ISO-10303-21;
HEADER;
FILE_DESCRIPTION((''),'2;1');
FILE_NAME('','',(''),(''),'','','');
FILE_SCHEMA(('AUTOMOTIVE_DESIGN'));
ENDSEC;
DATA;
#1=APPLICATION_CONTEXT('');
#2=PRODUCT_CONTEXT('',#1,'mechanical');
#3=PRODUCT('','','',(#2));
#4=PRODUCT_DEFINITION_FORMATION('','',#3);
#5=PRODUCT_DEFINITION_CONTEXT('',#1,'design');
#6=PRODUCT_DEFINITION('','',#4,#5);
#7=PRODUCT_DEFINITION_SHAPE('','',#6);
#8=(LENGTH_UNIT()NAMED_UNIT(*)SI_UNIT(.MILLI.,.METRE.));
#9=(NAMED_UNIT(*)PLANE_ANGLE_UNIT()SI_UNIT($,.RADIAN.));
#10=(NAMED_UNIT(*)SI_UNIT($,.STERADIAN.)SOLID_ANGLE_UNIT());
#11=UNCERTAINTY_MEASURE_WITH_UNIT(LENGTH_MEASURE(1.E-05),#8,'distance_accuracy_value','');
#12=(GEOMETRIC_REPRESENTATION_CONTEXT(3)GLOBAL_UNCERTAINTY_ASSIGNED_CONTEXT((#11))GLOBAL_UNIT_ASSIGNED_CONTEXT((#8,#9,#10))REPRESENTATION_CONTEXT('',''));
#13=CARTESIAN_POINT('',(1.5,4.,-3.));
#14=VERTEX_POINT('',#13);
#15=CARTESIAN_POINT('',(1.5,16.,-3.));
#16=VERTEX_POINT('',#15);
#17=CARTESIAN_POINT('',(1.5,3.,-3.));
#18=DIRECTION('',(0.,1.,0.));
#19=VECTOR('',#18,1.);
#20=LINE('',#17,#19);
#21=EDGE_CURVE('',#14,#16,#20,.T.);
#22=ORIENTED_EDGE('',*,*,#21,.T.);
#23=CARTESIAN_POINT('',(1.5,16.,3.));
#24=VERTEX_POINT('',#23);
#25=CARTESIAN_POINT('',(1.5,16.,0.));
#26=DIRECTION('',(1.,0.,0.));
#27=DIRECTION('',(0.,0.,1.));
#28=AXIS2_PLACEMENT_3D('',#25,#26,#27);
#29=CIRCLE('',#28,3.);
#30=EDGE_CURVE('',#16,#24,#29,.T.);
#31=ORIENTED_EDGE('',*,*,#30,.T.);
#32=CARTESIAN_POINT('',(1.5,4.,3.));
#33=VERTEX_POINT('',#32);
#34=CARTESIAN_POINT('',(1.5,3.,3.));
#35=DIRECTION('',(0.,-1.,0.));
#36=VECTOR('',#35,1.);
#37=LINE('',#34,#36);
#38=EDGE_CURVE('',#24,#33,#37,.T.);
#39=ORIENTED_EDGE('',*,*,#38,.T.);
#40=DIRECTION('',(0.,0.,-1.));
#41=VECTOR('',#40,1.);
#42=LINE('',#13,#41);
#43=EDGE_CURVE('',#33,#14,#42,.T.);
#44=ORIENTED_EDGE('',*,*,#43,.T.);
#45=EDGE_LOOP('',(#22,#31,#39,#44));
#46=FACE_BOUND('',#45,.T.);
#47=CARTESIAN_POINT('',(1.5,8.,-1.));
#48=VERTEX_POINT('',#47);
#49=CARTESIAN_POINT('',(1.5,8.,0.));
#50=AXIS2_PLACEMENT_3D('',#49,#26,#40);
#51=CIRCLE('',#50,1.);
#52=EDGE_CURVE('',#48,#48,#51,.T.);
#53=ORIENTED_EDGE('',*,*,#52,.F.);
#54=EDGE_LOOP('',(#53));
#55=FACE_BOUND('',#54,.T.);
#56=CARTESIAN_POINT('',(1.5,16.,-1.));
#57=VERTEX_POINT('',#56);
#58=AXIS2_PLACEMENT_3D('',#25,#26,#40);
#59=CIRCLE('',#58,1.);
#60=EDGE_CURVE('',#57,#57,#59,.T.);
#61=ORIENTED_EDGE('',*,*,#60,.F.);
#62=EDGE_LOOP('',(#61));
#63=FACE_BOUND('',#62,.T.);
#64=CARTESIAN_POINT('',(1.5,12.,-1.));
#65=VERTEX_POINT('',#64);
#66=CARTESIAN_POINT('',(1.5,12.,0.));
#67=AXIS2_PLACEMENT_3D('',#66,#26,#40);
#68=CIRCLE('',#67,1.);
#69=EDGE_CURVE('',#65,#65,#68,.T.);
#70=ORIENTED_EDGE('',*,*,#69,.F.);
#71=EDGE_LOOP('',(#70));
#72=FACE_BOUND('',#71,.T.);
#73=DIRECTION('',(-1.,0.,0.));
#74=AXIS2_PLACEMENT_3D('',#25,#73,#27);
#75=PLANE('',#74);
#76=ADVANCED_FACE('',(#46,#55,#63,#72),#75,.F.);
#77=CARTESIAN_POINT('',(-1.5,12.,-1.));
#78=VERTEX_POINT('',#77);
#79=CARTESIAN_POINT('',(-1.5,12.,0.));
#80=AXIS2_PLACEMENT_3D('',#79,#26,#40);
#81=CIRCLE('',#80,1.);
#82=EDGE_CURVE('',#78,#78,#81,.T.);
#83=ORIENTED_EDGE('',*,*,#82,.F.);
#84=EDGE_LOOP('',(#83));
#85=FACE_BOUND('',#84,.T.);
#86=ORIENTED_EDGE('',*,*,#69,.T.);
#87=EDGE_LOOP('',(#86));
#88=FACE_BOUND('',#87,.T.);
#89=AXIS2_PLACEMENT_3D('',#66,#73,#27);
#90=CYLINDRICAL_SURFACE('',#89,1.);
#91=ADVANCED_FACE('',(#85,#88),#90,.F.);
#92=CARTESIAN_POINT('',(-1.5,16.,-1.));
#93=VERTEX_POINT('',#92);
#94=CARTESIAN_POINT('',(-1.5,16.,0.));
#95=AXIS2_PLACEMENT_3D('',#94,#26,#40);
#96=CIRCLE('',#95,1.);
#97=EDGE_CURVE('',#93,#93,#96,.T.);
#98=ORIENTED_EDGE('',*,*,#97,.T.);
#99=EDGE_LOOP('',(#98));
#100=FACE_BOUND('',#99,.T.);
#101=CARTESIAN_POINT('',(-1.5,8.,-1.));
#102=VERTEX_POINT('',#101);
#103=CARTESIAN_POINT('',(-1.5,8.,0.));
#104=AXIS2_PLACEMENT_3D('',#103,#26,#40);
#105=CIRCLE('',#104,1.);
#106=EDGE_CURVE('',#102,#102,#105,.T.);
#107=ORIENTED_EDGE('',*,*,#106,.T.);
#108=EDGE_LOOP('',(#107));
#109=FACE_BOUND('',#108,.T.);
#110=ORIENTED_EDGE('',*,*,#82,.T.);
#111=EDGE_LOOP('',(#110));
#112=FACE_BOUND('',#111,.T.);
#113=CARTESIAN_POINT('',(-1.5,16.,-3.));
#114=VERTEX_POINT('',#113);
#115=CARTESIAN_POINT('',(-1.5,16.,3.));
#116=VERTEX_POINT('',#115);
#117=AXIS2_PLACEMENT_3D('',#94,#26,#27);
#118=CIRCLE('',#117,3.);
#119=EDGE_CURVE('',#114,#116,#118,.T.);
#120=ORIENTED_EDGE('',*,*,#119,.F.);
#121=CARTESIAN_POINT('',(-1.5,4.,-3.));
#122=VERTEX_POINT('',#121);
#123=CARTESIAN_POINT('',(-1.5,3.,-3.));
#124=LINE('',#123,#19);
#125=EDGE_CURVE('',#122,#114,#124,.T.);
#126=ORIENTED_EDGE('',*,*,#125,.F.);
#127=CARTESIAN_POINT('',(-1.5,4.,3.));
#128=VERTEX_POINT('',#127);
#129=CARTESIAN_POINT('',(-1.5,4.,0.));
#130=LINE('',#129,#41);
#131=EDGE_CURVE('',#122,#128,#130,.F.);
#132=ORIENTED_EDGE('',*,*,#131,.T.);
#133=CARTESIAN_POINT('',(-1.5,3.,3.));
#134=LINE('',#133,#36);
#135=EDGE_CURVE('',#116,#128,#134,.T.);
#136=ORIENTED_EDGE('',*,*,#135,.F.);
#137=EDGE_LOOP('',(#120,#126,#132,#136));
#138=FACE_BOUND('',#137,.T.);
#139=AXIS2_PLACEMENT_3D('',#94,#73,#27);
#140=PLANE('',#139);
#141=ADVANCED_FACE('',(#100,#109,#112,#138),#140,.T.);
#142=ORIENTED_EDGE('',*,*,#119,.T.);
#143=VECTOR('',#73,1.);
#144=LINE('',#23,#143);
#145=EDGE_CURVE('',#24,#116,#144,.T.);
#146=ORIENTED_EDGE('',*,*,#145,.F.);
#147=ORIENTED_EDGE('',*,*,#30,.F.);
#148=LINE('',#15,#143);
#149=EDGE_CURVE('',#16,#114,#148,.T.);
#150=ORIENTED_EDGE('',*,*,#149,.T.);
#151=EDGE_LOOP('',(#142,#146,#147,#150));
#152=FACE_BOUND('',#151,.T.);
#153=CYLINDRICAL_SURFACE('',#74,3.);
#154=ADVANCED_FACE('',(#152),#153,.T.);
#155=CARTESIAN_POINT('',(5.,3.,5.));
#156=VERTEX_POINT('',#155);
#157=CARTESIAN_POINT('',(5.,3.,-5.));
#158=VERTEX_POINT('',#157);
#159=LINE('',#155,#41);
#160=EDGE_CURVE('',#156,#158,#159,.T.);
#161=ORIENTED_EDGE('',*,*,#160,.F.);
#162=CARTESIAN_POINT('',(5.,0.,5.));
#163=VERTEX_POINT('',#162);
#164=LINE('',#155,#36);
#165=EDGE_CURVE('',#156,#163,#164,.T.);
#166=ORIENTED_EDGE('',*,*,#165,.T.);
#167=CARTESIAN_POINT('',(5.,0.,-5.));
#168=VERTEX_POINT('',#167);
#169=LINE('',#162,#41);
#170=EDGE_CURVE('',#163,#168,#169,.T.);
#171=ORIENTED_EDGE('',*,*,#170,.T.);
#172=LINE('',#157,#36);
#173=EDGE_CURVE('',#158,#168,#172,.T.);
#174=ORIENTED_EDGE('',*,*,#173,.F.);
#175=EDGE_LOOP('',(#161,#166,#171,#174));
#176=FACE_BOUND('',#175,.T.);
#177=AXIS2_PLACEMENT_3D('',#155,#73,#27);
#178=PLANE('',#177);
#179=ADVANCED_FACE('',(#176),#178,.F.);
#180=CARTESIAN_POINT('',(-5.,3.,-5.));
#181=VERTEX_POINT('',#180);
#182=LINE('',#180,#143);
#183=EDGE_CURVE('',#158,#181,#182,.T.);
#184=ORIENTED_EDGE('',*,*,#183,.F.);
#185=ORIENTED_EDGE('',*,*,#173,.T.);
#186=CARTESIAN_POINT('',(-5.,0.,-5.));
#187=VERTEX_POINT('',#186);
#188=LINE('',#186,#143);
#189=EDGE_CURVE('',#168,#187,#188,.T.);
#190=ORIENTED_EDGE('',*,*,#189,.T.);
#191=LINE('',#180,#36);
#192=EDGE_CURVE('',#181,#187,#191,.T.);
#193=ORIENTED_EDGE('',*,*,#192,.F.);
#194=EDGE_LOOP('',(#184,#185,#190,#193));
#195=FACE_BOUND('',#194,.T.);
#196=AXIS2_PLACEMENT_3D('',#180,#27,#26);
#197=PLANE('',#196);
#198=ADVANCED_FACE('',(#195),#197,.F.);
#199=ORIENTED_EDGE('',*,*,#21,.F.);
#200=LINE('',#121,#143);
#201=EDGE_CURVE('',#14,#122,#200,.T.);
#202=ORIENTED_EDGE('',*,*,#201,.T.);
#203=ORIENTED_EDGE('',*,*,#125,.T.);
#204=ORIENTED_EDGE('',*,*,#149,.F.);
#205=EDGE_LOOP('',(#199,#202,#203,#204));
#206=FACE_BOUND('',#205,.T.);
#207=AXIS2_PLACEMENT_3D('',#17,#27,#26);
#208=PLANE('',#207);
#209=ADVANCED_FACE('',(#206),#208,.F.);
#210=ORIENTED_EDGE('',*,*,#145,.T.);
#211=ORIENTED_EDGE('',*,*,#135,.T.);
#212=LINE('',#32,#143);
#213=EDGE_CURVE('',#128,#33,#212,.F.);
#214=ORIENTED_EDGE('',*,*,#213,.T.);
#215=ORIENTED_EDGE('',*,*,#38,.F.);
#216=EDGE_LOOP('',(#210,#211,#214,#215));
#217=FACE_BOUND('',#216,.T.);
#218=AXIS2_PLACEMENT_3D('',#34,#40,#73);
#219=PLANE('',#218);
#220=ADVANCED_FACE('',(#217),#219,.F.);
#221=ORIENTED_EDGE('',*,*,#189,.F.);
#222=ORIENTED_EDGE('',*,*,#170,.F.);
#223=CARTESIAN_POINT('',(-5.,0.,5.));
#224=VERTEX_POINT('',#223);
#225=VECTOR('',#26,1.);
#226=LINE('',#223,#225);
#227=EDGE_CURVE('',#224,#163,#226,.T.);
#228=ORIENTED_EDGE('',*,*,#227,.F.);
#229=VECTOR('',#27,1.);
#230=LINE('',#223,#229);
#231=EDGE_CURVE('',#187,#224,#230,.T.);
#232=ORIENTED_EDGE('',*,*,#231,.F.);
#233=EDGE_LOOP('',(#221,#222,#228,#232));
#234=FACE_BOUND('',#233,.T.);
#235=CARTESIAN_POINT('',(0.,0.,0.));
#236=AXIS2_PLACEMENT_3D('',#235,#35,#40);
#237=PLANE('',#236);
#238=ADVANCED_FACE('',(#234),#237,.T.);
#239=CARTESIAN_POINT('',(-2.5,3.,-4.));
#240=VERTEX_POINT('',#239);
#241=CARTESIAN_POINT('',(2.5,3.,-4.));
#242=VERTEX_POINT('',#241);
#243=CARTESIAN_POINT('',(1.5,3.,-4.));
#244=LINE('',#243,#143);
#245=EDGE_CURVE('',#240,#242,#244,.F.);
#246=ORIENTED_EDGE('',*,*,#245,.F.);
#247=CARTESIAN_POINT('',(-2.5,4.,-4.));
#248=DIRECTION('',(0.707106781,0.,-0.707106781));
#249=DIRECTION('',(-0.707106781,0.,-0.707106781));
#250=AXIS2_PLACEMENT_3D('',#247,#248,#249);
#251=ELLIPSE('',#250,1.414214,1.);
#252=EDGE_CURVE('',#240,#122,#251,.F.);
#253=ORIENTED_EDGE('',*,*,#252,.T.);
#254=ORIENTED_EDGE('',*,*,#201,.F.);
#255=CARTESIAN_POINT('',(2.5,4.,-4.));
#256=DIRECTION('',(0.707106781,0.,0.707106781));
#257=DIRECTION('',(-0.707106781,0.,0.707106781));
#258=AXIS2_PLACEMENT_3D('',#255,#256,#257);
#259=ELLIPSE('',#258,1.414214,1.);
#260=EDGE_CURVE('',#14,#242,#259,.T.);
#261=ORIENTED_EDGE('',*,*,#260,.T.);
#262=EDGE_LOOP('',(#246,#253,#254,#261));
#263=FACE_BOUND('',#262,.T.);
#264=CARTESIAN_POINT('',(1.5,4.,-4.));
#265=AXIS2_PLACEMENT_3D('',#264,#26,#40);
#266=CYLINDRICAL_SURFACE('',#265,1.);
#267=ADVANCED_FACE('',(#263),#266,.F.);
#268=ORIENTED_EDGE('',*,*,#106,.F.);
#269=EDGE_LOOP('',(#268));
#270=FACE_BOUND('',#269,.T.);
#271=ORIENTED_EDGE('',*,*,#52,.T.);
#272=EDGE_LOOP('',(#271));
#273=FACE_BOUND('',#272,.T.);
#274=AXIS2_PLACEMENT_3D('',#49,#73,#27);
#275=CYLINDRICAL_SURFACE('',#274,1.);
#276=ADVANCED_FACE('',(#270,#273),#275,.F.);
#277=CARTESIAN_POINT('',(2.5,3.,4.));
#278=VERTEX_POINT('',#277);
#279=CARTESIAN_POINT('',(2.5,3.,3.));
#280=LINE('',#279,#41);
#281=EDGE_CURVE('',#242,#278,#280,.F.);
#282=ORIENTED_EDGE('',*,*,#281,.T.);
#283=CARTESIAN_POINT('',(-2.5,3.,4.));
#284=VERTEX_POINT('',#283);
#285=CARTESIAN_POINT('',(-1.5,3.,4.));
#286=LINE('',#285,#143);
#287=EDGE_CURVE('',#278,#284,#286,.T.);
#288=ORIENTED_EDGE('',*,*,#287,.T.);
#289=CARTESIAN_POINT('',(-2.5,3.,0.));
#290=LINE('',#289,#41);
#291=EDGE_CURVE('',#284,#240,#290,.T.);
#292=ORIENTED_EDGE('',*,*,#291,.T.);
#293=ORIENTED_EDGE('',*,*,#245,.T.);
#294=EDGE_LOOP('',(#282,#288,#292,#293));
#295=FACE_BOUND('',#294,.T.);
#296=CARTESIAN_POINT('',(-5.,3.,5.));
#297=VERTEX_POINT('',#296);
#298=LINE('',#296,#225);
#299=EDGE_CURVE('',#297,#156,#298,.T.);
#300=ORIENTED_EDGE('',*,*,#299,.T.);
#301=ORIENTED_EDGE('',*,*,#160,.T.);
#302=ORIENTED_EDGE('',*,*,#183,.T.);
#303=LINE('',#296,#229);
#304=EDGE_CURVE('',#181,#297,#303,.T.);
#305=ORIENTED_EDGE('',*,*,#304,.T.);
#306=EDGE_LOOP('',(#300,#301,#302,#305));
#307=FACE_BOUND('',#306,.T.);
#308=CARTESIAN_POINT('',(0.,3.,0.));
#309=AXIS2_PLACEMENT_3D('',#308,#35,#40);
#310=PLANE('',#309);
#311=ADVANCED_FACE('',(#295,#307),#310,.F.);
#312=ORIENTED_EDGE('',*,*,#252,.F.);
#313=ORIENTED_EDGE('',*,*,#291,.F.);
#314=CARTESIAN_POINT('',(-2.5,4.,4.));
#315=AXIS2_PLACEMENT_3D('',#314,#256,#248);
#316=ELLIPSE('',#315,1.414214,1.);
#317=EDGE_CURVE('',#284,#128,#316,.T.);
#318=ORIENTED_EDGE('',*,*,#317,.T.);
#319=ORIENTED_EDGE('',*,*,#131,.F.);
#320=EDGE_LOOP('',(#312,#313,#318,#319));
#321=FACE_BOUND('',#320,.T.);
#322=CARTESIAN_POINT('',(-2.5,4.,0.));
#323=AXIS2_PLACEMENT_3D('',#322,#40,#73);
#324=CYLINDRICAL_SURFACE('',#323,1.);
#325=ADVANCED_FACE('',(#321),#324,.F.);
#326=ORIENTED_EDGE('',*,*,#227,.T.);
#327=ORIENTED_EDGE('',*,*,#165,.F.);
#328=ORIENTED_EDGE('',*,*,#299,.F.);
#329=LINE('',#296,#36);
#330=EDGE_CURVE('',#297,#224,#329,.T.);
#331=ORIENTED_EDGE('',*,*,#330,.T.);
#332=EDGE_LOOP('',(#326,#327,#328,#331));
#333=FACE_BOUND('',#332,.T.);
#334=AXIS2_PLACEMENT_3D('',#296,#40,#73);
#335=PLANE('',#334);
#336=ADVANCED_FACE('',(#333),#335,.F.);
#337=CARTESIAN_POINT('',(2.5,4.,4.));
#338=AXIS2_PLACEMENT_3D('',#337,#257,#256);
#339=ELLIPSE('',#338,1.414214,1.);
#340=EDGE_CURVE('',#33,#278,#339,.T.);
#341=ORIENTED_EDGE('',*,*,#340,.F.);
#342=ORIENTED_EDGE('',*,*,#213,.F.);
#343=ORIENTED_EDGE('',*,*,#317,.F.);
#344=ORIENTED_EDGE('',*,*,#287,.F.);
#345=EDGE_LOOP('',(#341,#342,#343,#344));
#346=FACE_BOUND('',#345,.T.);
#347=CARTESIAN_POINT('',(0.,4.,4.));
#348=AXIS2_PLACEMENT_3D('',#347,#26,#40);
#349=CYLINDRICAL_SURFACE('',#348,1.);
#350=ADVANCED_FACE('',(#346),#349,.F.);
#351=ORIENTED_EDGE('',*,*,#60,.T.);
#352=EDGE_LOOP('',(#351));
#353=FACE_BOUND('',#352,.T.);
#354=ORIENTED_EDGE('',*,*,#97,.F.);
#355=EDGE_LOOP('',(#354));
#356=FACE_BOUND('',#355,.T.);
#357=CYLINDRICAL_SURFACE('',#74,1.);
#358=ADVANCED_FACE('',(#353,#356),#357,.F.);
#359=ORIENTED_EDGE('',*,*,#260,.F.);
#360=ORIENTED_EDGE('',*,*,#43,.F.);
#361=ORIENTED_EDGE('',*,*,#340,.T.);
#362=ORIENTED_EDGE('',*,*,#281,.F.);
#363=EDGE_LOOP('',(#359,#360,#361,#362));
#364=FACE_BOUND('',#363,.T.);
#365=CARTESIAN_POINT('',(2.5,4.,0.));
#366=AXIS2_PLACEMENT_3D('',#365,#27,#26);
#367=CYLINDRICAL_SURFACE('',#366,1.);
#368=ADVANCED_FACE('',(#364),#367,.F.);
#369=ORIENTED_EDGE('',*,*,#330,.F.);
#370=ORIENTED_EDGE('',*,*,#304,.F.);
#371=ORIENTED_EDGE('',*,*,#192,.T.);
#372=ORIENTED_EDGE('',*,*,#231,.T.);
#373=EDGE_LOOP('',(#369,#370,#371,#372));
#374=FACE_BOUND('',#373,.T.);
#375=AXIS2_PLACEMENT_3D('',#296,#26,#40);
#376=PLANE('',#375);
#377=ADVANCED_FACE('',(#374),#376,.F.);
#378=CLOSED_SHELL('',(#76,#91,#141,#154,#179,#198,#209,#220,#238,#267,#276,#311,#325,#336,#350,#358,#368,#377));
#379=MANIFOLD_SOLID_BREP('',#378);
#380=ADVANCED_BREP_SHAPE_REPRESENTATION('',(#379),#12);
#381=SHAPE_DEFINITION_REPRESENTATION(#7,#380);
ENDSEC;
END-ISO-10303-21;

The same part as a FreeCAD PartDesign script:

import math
import FreeCAD as App
import Part
import Sketcher

V = App.Vector


def edges_at(feature, points):
    """Names of the edges that pass closest to the given points."""
    edges = feature.Shape.Edges
    near = lambda p: min(range(len(edges)), key=lambda i: edges[i].distToShape(Part.Vertex(*p))[0])
    return sorted({f"Edge{near(p) + 1}" for p in points})

doc = App.newDocument("Part")
body = doc.addObject("PartDesign::Body", "Body")

# Sketch on XZ plane
sketch1 = body.newObject("Sketcher::SketchObject", "Sketch")
sketch1.AttachmentSupport = (doc.getObject("XZ_Plane"), [""])
sketch1.MapMode = "FlatFace"
sketch1.addGeometry(Part.LineSegment(V(-5, -5, 0), V(-5, 5, 0)), False)
sketch1.addGeometry(Part.LineSegment(V(-5, 5, 0), V(5, 5, 0)), False)
sketch1.addGeometry(Part.LineSegment(V(5, 5, 0), V(5, -5, 0)), False)
sketch1.addGeometry(Part.LineSegment(V(5, -5, 0), V(-5, -5, 0)), False)
sketch1.addConstraint(Sketcher.Constraint("Coincident", 0, 2, 1, 1))
sketch1.addConstraint(Sketcher.Constraint("Coincident", 1, 2, 2, 1))
sketch1.addConstraint(Sketcher.Constraint("Coincident", 2, 2, 3, 1))
sketch1.addConstraint(Sketcher.Constraint("Coincident", 3, 2, 0, 1))
sketch1.addConstraint(Sketcher.Constraint("Vertical", 0))
sketch1.addConstraint(Sketcher.Constraint("Horizontal", 1))
sketch1.addConstraint(Sketcher.Constraint("Vertical", 2))
sketch1.addConstraint(Sketcher.Constraint("Horizontal", 3))
sketch1.addConstraint(Sketcher.Constraint("Symmetric", 0, 2, 2, 2, -1, 1))
sketch1.addConstraint(Sketcher.Constraint("Equal", 3, 0))
sketch1.addConstraint(Sketcher.Constraint("DistanceX", 1, 1, 1, 2, 10.0))
pad1 = body.newObject("PartDesign::Pad", "Pad")
pad1.Profile = sketch1
pad1.Length = 3
pad1.Reversed = True

# Sketch on YZ plane
sketch2 = body.newObject("Sketcher::SketchObject", "Sketch001")
sketch2.AttachmentSupport = (doc.getObject("YZ_Plane"), [""])
sketch2.MapMode = "FlatFace"
sketch2.addGeometry(Part.LineSegment(V(16, 3, 0), V(3, 3, 0)), False)
sketch2.addGeometry(Part.LineSegment(V(3, 3, 0), V(3, -3, 0)), False)
sketch2.addGeometry(Part.LineSegment(V(3, -3, 0), V(16, -3, 0)), False)
sketch2.addGeometry(Part.ArcOfCircle(Part.Circle(V(16, 0, 0), V(0, 0, 1), 3), math.radians(-90), math.radians(90)), False)
sketch2.addGeometry(Part.Circle(V(8, 0, 0), V(0, 0, 1), 1), False)
sketch2.addGeometry(Part.Circle(V(12, 0, 0), V(0, 0, 1), 1), False)
sketch2.addGeometry(Part.Circle(V(16, 0, 0), V(0, 0, 1), 1), False)
sketch2.addConstraint(Sketcher.Constraint("Coincident", 0, 2, 1, 1))
sketch2.addConstraint(Sketcher.Constraint("Coincident", 1, 2, 2, 1))
sketch2.addConstraint(Sketcher.Constraint("Tangent", 2, 2, 3, 1))
sketch2.addConstraint(Sketcher.Constraint("Tangent", 3, 2, 0, 1))
sketch2.addConstraint(Sketcher.Constraint("Horizontal", 0))
sketch2.addConstraint(Sketcher.Constraint("Vertical", 1))
sketch2.addConstraint(Sketcher.Constraint("Horizontal", 2))
sketch2.addConstraint(Sketcher.Constraint("Coincident", 6, 3, 3, 3))
sketch2.addConstraint(Sketcher.Constraint("Equal", 4, 5))
sketch2.addConstraint(Sketcher.Constraint("Equal", 5, 6))
sketch2.addConstraint(Sketcher.Constraint("PointOnObject", 3, 3, -1))
sketch2.addConstraint(Sketcher.Constraint("PointOnObject", 4, 3, -1))
sketch2.addConstraint(Sketcher.Constraint("PointOnObject", 5, 3, -1))
sketch2.addConstraint(Sketcher.Constraint("Diameter", 4, 2.0))
sketch2.addConstraint(Sketcher.Constraint("Radius", 3, 3.0))
sketch2.addConstraint(Sketcher.Constraint("DistanceX", 0, 2, 0, 1, 13.0))
sketch2.addConstraint(Sketcher.Constraint("DistanceX", -1, 1, 3, 3, 16.0))
sketch2.addConstraint(Sketcher.Constraint("DistanceX", -1, 1, 4, 3, 8.0))
sketch2.addConstraint(Sketcher.Constraint("DistanceX", -1, 1, 5, 3, 12.0))
pad2 = body.newObject("PartDesign::Pad", "Pad001")
pad2.Profile = sketch2
pad2.Length = 3
pad2.Midplane = True
doc.recompute()

fillet = body.newObject("PartDesign::Fillet", "Fillet")
fillet.Base = (pad2, edges_at(pad2, [
    (1.5, 3, 0),
    (-1.5, 3, 0),
    (0, 3, 3),
    (0, 3, -3),
]))
fillet.Radius = 1

doc.recompute()
